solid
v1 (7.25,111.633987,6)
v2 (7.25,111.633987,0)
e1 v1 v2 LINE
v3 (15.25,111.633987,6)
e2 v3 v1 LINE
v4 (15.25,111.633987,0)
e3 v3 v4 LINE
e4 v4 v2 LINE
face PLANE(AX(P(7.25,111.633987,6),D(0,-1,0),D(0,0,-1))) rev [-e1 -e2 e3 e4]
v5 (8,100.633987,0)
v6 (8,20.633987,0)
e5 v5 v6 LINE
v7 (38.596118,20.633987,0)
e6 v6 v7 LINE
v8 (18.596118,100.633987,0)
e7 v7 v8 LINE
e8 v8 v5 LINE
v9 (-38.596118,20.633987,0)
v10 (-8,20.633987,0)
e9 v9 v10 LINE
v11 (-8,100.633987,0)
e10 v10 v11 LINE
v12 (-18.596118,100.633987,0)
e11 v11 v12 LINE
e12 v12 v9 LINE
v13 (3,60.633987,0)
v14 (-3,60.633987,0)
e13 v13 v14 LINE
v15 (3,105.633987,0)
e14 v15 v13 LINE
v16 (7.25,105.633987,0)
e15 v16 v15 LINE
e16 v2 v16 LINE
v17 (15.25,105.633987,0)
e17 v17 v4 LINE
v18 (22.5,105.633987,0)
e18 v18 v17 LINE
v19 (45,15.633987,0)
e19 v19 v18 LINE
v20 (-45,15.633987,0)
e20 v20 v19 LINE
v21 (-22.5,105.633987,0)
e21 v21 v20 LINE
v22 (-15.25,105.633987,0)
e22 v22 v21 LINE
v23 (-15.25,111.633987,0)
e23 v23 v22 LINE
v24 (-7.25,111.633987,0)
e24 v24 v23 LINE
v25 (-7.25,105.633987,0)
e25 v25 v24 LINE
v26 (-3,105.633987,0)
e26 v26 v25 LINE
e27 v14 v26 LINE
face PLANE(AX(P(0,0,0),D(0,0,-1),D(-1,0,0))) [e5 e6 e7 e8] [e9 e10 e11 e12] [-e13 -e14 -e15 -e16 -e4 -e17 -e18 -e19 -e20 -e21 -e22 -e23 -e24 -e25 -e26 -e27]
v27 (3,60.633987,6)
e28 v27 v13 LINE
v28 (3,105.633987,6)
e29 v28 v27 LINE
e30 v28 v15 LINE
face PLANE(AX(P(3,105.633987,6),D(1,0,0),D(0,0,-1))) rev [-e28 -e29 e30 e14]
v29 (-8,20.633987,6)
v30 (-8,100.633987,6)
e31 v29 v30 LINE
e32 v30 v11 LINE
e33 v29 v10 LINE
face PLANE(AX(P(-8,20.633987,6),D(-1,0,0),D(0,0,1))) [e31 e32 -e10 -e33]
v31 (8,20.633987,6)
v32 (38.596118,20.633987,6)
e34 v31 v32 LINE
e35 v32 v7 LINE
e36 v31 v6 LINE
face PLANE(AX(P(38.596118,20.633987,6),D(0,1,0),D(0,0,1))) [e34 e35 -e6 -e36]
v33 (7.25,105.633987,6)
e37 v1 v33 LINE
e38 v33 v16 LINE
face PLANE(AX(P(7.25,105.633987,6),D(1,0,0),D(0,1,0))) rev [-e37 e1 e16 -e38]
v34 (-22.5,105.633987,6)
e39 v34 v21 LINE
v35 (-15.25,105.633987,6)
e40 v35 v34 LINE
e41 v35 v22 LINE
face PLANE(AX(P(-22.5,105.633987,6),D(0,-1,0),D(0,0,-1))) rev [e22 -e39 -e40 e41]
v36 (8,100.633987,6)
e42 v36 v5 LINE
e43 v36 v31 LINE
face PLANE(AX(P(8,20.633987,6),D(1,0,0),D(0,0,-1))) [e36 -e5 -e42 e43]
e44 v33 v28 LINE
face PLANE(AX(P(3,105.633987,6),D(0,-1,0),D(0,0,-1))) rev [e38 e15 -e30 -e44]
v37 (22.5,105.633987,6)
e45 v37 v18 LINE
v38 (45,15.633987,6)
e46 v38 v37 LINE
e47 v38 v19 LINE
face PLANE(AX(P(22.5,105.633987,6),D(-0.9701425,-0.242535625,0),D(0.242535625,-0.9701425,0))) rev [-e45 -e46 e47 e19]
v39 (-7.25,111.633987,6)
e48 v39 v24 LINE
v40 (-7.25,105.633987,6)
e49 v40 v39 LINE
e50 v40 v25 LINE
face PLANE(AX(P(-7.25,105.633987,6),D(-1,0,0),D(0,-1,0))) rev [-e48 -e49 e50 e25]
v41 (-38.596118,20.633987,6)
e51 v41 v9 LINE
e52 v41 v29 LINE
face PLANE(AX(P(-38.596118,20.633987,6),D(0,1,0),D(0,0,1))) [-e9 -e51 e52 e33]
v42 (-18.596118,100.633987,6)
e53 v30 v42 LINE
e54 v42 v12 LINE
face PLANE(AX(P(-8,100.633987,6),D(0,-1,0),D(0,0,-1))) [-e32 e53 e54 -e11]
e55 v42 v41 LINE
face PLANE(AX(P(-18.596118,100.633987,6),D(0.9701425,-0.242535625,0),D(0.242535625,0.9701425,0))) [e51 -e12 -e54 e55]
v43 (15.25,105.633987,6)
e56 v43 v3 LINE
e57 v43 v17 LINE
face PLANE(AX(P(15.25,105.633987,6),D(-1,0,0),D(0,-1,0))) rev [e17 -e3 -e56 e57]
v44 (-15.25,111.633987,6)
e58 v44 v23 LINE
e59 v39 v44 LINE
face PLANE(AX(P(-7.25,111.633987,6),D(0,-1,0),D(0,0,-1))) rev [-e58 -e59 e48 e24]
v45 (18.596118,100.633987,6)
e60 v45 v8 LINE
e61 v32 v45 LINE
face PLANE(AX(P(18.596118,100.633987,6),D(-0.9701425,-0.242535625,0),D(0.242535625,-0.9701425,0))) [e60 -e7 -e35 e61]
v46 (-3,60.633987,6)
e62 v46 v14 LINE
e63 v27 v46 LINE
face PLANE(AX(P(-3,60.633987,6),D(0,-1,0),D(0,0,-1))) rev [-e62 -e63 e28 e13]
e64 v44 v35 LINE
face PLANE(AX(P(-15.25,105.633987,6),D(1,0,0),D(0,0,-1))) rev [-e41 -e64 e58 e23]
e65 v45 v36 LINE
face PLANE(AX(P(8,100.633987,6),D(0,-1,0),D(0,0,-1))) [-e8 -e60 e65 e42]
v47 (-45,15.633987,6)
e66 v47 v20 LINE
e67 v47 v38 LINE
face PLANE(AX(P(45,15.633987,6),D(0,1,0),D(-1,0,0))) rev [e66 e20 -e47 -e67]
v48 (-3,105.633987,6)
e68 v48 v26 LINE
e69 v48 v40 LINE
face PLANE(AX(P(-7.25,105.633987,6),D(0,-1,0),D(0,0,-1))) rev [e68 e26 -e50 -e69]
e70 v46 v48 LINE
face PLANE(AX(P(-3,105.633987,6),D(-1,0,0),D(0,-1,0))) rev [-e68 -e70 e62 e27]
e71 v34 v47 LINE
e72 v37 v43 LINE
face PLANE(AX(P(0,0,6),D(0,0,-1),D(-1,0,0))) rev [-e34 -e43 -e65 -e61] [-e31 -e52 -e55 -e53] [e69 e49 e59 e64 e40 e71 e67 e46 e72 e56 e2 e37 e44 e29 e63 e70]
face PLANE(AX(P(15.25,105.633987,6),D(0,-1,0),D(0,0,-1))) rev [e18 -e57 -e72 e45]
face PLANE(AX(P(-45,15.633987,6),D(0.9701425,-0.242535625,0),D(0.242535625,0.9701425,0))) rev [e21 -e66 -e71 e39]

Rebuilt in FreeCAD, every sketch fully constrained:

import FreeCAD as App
import Part
import Sketcher
Q = App.Units.Quantity

doc = App.newDocument("Part")
body = doc.addObject("PartDesign::Body", "Body")

# Sketch on XY plane
sketch1 = doc.addObject("Sketcher::SketchObject", "Sketch")
body.addObject(sketch1)
sketch1.AttachmentSupport = (doc.XY_Plane, [""])
sketch1.MapMode = "FlatFace"
sketch1.addGeometry([
    Part.LineSegment(App.Vector(-45, 15.6, 0), App.Vector(45, 15.6, 0)),  # 0
    Part.LineSegment(App.Vector(45, 15.6, 0), App.Vector(22.5, 105.6, 0)),  # 1
    Part.LineSegment(App.Vector(22.5, 105.6, 0), App.Vector(15.2, 105.6, 0)),  # 2
    Part.LineSegment(App.Vector(15.2, 105.6, 0), App.Vector(15.2, 111.6, 0)),  # 3
    Part.LineSegment(App.Vector(15.2, 111.6, 0), App.Vector(7.2, 111.6, 0)),  # 4
    Part.LineSegment(App.Vector(7.2, 111.6, 0), App.Vector(7.2, 105.6, 0)),  # 5
    Part.LineSegment(App.Vector(7.2, 105.6, 0), App.Vector(3, 105.6, 0)),  # 6
    Part.LineSegment(App.Vector(3, 105.6, 0), App.Vector(3, 60.6, 0)),  # 7
    Part.LineSegment(App.Vector(3, 60.6, 0), App.Vector(-3, 60.6, 0)),  # 8
    Part.LineSegment(App.Vector(-3, 60.6, 0), App.Vector(-3, 105.6, 0)),  # 9
    Part.LineSegment(App.Vector(-3, 105.6, 0), App.Vector(-7.2, 105.6, 0)),  # 10
    Part.LineSegment(App.Vector(-7.2, 105.6, 0), App.Vector(-7.2, 111.6, 0)),  # 11
    Part.LineSegment(App.Vector(-7.2, 111.6, 0), App.Vector(-15.2, 111.6, 0)),  # 12
    Part.LineSegment(App.Vector(-15.2, 111.6, 0), App.Vector(-15.2, 105.6, 0)),  # 13
    Part.LineSegment(App.Vector(-15.2, 105.6, 0), App.Vector(-22.5, 105.6, 0)),  # 14
    Part.LineSegment(App.Vector(-22.5, 105.6, 0), App.Vector(-45, 15.6, 0)),  # 15
    Part.LineSegment(App.Vector(38.6, 20.6, 0), App.Vector(8, 20.6, 0)),  # 16
    Part.LineSegment(App.Vector(8, 20.6, 0), App.Vector(8, 100.6, 0)),  # 17
    Part.LineSegment(App.Vector(8, 100.6, 0), App.Vector(18.6, 100.6, 0)),  # 18
    Part.LineSegment(App.Vector(18.6, 100.6, 0), App.Vector(38.6, 20.6, 0)),  # 19
    Part.LineSegment(App.Vector(-8, 100.6, 0), App.Vector(-8, 20.6, 0)),  # 20
    Part.LineSegment(App.Vector(-8, 20.6, 0), App.Vector(-38.6, 20.6, 0)),  # 21
    Part.LineSegment(App.Vector(-38.6, 20.6, 0), App.Vector(-18.6, 100.6, 0)),  # 22
    Part.LineSegment(App.Vector(-18.6, 100.6, 0), App.Vector(-8, 100.6, 0)),  # 23
], False)
sketch1.addConstraint([
    Sketcher.Constraint("Coincident", 0, 2, 1, 1),
    Sketcher.Constraint("Coincident", 1, 2, 2, 1),
    Sketcher.Constraint("Coincident", 2, 2, 3, 1),
    Sketcher.Constraint("Coincident", 3, 2, 4, 1),
    Sketcher.Constraint("Coincident", 4, 2, 5, 1),
    Sketcher.Constraint("Coincident", 5, 2, 6, 1),
    Sketcher.Constraint("Coincident", 6, 2, 7, 1),
    Sketcher.Constraint("Coincident", 7, 2, 8, 1),
    Sketcher.Constraint("Coincident", 8, 2, 9, 1),
    Sketcher.Constraint("Coincident", 9, 2, 10, 1),
    Sketcher.Constraint("Coincident", 10, 2, 11, 1),
    Sketcher.Constraint("Coincident", 11, 2, 12, 1),
    Sketcher.Constraint("Coincident", 12, 2, 13, 1),
    Sketcher.Constraint("Coincident", 13, 2, 14, 1),
    Sketcher.Constraint("Coincident", 14, 2, 15, 1),
    Sketcher.Constraint("Coincident", 15, 2, 0, 1),
    Sketcher.Constraint("Coincident", 16, 2, 17, 1),
    Sketcher.Constraint("Coincident", 17, 2, 18, 1),
    Sketcher.Constraint("Coincident", 18, 2, 19, 1),
    Sketcher.Constraint("Coincident", 19, 2, 16, 1),
    Sketcher.Constraint("Coincident", 20, 2, 21, 1),
    Sketcher.Constraint("Coincident", 21, 2, 22, 1),
    Sketcher.Constraint("Coincident", 22, 2, 23, 1),
    Sketcher.Constraint("Coincident", 23, 2, 20, 1),
    Sketcher.Constraint("Horizontal", 0),
    Sketcher.Constraint("Horizontal", 2),
    Sketcher.Constraint("Vertical", 3),
    Sketcher.Constraint("Horizontal", 4),
    Sketcher.Constraint("Vertical", 5),
    Sketcher.Constraint("Horizontal", 6),
    Sketcher.Constraint("Vertical", 7),
    Sketcher.Constraint("Horizontal", 8),
    Sketcher.Constraint("Vertical", 9),
    Sketcher.Constraint("Horizontal", 10),
    Sketcher.Constraint("Vertical", 11),
    Sketcher.Constraint("Horizontal", 12),
    Sketcher.Constraint("Vertical", 13),
    Sketcher.Constraint("Horizontal", 14),
    Sketcher.Constraint("Horizontal", 16),
    Sketcher.Constraint("Vertical", 17),
    Sketcher.Constraint("Horizontal", 18),
    Sketcher.Constraint("Vertical", 20),
    Sketcher.Constraint("Horizontal", 21),
    Sketcher.Constraint("Horizontal", 23),
    Sketcher.Constraint("Symmetric", 6, 2, 9, 2, -2),
    Sketcher.Constraint("Symmetric", 4, 2, 11, 2, -2),
    Sketcher.Constraint("Symmetric", 2, 2, 13, 2, -2),
    Sketcher.Constraint("Symmetric", 16, 2, 20, 2, -2),
    Sketcher.Constraint("Symmetric", 18, 2, 22, 2, -2),
    Sketcher.Constraint("Parallel", 1, 19),
    Sketcher.Constraint("Parallel", 15, 22),
    Sketcher.Constraint("Horizontal", 2, 2, 5, 2),
    Sketcher.Constraint("Equal", 2, 14),
    Sketcher.Constraint("Equal", 16, 21),
    Sketcher.Constraint("Equal", 8, 3),
    Sketcher.Constraint("DistanceX", 0, 1, 0, 2, Q("90 mm")),
    Sketcher.Constraint("DistanceX", 4, 2, 4, 1, Q("8 mm")),
    Sketcher.Constraint("DistanceX", 8, 2, 8, 1, Q("6 mm")),
    Sketcher.Constraint("DistanceY", 7, 2, 7, 1, Q("45 mm")),
    Sketcher.Constraint("DistanceY", 17, 1, 17, 2, Q("80 mm")),
    Sketcher.Constraint("DistanceX", -1, 1, 16, 2, Q("8 mm")),
    Sketcher.Constraint("DistanceY", 0, 2, 1, 2, Q("90 mm")),
    Sketcher.Constraint("DistanceY", 0, 2, 16, 2, Q("5 mm")),
    Sketcher.Constraint("DistanceX", 18, 2, 19, 2, Q("20 mm")),
    Sketcher.Constraint("DistanceX", 2, 2, 2, 1, Q("7.25 mm")),
    Sketcher.Constraint("DistanceX", 16, 2, 16, 1, Q("30.596118 mm")),
    Sketcher.Constraint("DistanceY", -1, 1, 0, 2, Q("15.633987 mm")),
])
pad1 = doc.addObject("PartDesign::Pad", "Pad")
body.addObject(pad1)
pad1.Profile = sketch1
pad1.Length = 6

doc.recompute()
